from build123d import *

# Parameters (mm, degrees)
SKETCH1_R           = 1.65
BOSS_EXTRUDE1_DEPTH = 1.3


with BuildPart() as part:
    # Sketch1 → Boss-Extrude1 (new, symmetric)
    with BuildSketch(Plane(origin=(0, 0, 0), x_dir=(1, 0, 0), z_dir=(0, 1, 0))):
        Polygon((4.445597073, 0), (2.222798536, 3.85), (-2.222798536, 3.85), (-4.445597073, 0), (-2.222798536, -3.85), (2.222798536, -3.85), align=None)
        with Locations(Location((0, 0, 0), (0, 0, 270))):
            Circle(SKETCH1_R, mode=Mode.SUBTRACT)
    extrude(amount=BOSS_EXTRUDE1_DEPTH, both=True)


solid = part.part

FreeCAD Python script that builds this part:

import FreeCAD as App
import Part
import Sketcher

V = App.Vector
Q = App.Units.Quantity


def add_polygon(sketch, points):
    """Adds a closed chain of lines whose ends are joined by coincident constraints."""
    first, n = sketch.GeometryCount, len(points)
    for a, b in zip(points, points[1:] + points[:1]):
        sketch.addGeometry(Part.LineSegment(App.Vector(*a, 0), App.Vector(*b, 0)), False)
    for i in range(n):
        sketch.addConstraint(Sketcher.Constraint("Coincident", first + i, 2, first + (i + 1) % n, 1))

doc = App.newDocument("Part")
body = doc.addObject("PartDesign::Body", "Body")

# Sketch on XZ plane
sketch1 = doc.addObject("Sketcher::SketchObject", "Sketch")
body.addObject(sketch1)
sketch1.AttachmentSupport = (doc.XZ_Plane, [""])
sketch1.MapMode = "FlatFace"
add_polygon(sketch1, [(4.445597, 0), (2.222799, -3.85), (-2.222799, -3.85), (-4.445597, 0), (-2.222799, 3.85), (2.222799, 3.85)])  # lines 0-5
sketch1.addGeometry(Part.Circle(V(0, 0, 0), V(0, 0, 1), 1.65), False)  # 6
sketch1.addConstraint([
    Sketcher.Constraint("Horizontal", 1),
    Sketcher.Constraint("Horizontal", 4),
    Sketcher.Constraint("Coincident", 6, 3, -1, 1),
    Sketcher.Constraint("Symmetric", 0, 2, 3, 2, -1, 1),
    Sketcher.Constraint("Symmetric", 2, 2, 5, 2, -1, 1),
    Sketcher.Constraint("PointOnObject", 2, 2, -1),
    Sketcher.Constraint("Parallel", 2, 5),
    Sketcher.Constraint("Vertical", 1, 2, 3, 2),
    Sketcher.Constraint("Diameter", 6, Q("3.3 mm")),
    Sketcher.Constraint("Angle", 0, Q("-120 deg")),
    Sketcher.Constraint("DistanceY", 1, 2, 3, 2, Q("7.7 mm")),
    Sketcher.Constraint("DistanceX", -1, 1, 0, 2, Q("2.222799 mm")),
])
pad1 = doc.addObject("PartDesign::Pad", "Pad")
body.addObject(pad1)
pad1.Profile = sketch1
pad1.Length = 2.6
pad1.Midplane = True

doc.recompute()
